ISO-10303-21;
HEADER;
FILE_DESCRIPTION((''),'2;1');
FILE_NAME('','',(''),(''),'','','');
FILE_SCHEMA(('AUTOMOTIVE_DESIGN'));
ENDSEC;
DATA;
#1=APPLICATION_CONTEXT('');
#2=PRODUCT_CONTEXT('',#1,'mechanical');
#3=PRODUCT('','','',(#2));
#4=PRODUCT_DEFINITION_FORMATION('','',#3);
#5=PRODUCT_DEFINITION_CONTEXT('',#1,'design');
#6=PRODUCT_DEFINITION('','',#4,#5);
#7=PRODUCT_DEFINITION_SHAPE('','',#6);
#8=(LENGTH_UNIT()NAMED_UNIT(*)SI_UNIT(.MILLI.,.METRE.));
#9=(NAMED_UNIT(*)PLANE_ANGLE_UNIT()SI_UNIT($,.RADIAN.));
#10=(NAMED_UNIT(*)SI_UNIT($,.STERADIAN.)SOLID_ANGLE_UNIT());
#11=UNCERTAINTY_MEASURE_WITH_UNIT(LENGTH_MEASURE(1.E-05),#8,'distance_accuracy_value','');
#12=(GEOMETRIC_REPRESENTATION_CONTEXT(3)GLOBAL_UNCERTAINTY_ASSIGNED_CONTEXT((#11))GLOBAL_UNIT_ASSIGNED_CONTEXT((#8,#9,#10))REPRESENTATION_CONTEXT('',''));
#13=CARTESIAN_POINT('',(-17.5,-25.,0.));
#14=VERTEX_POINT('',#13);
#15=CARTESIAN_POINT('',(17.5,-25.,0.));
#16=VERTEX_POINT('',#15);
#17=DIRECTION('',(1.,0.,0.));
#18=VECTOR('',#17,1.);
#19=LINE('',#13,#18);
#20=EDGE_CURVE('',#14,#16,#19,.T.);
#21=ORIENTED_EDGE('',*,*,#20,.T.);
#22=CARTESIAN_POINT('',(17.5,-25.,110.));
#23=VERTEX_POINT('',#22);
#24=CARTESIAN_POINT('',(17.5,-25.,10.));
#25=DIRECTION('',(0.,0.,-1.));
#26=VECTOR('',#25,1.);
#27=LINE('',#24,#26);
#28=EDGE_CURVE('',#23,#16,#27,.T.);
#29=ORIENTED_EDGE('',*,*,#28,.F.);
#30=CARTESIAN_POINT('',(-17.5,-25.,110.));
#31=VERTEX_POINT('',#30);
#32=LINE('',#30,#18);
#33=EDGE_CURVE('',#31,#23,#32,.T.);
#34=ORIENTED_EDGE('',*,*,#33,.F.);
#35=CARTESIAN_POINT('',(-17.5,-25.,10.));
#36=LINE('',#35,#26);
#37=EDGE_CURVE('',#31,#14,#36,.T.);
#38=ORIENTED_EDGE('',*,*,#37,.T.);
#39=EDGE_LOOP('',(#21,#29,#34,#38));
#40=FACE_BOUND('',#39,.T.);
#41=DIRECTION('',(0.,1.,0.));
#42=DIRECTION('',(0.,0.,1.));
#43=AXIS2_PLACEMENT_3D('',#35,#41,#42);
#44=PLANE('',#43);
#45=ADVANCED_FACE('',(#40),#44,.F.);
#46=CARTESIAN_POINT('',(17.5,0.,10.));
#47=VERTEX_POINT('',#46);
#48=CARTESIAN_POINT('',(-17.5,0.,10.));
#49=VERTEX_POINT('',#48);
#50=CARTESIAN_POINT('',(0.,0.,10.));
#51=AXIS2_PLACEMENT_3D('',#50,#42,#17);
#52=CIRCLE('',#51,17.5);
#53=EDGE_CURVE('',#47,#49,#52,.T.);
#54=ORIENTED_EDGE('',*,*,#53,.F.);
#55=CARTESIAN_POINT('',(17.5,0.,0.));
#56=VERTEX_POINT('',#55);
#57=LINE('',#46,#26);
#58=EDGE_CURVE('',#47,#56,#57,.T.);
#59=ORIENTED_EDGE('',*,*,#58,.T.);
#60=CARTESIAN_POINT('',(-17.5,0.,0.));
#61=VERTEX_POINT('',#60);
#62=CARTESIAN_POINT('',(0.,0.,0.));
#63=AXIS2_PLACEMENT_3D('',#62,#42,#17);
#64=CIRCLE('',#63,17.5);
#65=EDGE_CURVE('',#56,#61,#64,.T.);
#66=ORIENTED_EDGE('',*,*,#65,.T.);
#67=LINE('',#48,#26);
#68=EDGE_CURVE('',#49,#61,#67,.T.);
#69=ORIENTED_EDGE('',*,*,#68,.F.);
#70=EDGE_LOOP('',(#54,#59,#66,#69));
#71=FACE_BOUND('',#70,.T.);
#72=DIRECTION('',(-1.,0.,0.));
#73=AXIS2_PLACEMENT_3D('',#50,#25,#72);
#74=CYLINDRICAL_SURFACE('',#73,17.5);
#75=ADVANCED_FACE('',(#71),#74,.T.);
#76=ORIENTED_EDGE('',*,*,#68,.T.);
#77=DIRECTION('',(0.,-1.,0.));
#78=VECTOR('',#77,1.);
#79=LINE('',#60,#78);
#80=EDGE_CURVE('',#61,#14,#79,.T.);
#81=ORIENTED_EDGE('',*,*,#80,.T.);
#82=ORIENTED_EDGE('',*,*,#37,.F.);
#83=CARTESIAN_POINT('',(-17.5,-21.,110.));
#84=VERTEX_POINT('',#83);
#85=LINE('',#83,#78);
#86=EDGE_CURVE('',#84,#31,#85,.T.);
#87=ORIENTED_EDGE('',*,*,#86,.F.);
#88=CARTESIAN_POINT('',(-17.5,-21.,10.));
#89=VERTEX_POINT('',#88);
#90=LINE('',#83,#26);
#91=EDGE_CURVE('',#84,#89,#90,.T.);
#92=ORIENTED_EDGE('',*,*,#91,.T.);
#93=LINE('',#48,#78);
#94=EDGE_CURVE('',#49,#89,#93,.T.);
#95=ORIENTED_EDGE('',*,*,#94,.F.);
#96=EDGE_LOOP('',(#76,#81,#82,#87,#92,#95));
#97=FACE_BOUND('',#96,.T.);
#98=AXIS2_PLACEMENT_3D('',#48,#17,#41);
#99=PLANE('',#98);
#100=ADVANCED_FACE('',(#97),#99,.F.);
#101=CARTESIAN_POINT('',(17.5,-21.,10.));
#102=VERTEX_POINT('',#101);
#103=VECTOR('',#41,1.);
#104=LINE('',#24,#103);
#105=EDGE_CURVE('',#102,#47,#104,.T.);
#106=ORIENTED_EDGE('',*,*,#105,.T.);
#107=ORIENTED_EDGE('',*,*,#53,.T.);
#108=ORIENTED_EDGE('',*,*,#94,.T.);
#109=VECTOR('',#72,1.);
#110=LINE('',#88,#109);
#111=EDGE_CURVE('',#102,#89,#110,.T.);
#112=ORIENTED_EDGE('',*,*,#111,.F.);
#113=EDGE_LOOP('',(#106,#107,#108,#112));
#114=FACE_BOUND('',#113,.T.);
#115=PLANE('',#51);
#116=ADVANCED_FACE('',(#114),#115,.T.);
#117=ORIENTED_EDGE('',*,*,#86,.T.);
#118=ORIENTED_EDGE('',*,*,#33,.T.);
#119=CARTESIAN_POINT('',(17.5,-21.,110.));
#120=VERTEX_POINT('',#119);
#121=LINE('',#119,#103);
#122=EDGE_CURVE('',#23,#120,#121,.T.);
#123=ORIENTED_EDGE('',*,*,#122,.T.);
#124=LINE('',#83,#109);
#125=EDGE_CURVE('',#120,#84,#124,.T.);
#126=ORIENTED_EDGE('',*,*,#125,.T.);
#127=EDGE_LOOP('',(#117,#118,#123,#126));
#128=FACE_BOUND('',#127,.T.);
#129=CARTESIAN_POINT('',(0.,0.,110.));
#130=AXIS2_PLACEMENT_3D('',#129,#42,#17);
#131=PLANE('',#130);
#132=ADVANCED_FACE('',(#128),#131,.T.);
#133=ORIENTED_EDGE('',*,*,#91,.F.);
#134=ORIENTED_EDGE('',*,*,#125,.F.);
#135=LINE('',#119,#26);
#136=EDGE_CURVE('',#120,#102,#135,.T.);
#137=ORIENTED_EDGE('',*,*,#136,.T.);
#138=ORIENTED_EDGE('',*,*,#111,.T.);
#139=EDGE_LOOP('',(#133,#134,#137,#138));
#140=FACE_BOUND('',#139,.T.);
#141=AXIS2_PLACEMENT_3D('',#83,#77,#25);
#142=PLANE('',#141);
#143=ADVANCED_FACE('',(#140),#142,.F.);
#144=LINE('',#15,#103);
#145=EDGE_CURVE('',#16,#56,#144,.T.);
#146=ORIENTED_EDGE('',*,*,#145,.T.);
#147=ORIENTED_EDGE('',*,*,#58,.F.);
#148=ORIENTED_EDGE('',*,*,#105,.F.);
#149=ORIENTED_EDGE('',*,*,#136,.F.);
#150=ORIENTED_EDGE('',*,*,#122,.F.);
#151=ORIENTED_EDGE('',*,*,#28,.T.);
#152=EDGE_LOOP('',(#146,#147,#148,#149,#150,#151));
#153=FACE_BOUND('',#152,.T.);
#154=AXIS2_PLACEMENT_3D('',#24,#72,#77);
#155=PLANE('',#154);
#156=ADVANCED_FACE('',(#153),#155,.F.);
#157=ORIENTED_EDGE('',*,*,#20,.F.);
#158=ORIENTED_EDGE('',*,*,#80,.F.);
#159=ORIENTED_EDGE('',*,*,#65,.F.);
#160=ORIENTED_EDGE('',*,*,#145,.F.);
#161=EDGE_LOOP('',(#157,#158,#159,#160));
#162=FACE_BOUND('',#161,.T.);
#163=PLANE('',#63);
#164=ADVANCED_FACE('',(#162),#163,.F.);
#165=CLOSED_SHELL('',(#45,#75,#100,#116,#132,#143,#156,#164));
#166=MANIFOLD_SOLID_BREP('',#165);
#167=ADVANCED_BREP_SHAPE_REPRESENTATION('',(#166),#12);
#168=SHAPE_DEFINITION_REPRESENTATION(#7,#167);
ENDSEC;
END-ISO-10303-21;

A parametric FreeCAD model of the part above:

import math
import FreeCAD as App
import Part
import Sketcher
Q = App.Units.Quantity

doc = App.newDocument("Part")
params = doc.addObject("Spreadsheet::Sheet", "Params")
for row, (alias, value) in enumerate([
    ("sketch1_radius", "17.5 mm"),
    ("sketch1_height", "25 mm"),
    ("pad1_length", "10 mm"),
    ("sketch2_width", "35 mm"),
    ("sketch2_height", "4 mm"),
    ("pad2_length", "100 mm"),
], start=1):
    params.set(f"A{row}", alias)
    params.set(f"B{row}", "=" + value)
    params.setAlias(f"B{row}", alias)

body = doc.addObject("PartDesign::Body", "Body")

# Sketch on XY plane
sketch1 = body.newObject("Sketcher::SketchObject", "Sketch")
sketch1.AttachmentSupport = (doc.getObject("XY_Plane"), [""])
sketch1.MapMode = "FlatFace"
sketch1.addGeometry([
    Part.LineSegment(App.Vector(-18, 0, 0), App.Vector(-18, -25, 0)),
    Part.LineSegment(App.Vector(-18, -25, 0), App.Vector(18, -25, 0)),
    Part.LineSegment(App.Vector(18, -25, 0), App.Vector(18, 0, 0)),
    Part.ArcOfCircle(Part.Circle(App.Vector(0, 0, 0), App.Vector(0, 0, 1), 18), math.radians(0), math.radians(180)),
], False)
sketch1.addConstraint([
    Sketcher.Constraint("Coincident", 0, 2, 1, 1),
    Sketcher.Constraint("Coincident", 1, 2, 2, 1),
    Sketcher.Constraint("Tangent", 2, 2, 3, 1),
    Sketcher.Constraint("Tangent", 3, 2, 0, 1),
    Sketcher.Constraint("Vertical", 0),
    Sketcher.Constraint("Horizontal", 1),
    Sketcher.Constraint("Vertical", 2),
    Sketcher.Constraint("Coincident", 3, 3, -1, 1),
    Sketcher.Constraint("Radius", 3, Q("17.5 mm")),
    Sketcher.Constraint("DistanceY", 0, 2, 0, 1, Q("25 mm")),
])
sketch1.setExpression("Constraints[8]", "Params.sketch1_radius")
sketch1.setExpression("Constraints[9]", "Params.sketch1_height")
pad1 = body.newObject("PartDesign::Pad", "Pad")
pad1.Profile = sketch1
pad1.setExpression("Length", "Params.pad1_length")

# Sketch on XY plane
sketch2 = body.newObject("Sketcher::SketchObject", "Sketch001")
sketch2.AttachmentSupport = (doc.getObject("XY_Plane"), [""])
sketch2.MapMode = "FlatFace"
sketch2.AttachmentOffset = App.Placement(App.Vector(0, 0, 10), App.Rotation())
sketch2.addGeometry([
    Part.LineSegment(App.Vector(-17.5, -21, 0), App.Vector(-17.5, -25, 0)),
    Part.LineSegment(App.Vector(-17.5, -25, 0), App.Vector(17.5, -25, 0)),
    Part.LineSegment(App.Vector(17.5, -25, 0), App.Vector(17.5, -21, 0)),
    Part.LineSegment(App.Vector(17.5, -21, 0), App.Vector(-17.5, -21, 0)),
], False)
sketch2.addConstraint([
    Sketcher.Constraint("Coincident", 0, 2, 1, 1),
    Sketcher.Constraint("Coincident", 1, 2, 2, 1),
    Sketcher.Constraint("Coincident", 2, 2, 3, 1),
    Sketcher.Constraint("Coincident", 3, 2, 0, 1),
    Sketcher.Constraint("Vertical", 0),
    Sketcher.Constraint("Horizontal", 1),
    Sketcher.Constraint("Vertical", 2),
    Sketcher.Constraint("Horizontal", 3),
    Sketcher.Constraint("DistanceX", 1, 1, 1, 2, Q("35 mm")),
    Sketcher.Constraint("DistanceY", 0, 2, 0, 1, Q("4 mm")),
    Sketcher.Constraint("DistanceY", 0, 2, -1, 1, Q("25 mm")),
    Sketcher.Constraint("DistanceX", 0, 2, -1, 1, Q("17.5 mm")),
])
sketch2.setExpression("Constraints[8]", "Params.sketch2_width")
sketch2.setExpression("Constraints[9]", "Params.sketch2_height")
pad2 = body.newObject("PartDesign::Pad", "Pad001")
pad2.Profile = sketch2
pad2.setExpression("Length", "Params.pad2_length")

doc.recompute()
